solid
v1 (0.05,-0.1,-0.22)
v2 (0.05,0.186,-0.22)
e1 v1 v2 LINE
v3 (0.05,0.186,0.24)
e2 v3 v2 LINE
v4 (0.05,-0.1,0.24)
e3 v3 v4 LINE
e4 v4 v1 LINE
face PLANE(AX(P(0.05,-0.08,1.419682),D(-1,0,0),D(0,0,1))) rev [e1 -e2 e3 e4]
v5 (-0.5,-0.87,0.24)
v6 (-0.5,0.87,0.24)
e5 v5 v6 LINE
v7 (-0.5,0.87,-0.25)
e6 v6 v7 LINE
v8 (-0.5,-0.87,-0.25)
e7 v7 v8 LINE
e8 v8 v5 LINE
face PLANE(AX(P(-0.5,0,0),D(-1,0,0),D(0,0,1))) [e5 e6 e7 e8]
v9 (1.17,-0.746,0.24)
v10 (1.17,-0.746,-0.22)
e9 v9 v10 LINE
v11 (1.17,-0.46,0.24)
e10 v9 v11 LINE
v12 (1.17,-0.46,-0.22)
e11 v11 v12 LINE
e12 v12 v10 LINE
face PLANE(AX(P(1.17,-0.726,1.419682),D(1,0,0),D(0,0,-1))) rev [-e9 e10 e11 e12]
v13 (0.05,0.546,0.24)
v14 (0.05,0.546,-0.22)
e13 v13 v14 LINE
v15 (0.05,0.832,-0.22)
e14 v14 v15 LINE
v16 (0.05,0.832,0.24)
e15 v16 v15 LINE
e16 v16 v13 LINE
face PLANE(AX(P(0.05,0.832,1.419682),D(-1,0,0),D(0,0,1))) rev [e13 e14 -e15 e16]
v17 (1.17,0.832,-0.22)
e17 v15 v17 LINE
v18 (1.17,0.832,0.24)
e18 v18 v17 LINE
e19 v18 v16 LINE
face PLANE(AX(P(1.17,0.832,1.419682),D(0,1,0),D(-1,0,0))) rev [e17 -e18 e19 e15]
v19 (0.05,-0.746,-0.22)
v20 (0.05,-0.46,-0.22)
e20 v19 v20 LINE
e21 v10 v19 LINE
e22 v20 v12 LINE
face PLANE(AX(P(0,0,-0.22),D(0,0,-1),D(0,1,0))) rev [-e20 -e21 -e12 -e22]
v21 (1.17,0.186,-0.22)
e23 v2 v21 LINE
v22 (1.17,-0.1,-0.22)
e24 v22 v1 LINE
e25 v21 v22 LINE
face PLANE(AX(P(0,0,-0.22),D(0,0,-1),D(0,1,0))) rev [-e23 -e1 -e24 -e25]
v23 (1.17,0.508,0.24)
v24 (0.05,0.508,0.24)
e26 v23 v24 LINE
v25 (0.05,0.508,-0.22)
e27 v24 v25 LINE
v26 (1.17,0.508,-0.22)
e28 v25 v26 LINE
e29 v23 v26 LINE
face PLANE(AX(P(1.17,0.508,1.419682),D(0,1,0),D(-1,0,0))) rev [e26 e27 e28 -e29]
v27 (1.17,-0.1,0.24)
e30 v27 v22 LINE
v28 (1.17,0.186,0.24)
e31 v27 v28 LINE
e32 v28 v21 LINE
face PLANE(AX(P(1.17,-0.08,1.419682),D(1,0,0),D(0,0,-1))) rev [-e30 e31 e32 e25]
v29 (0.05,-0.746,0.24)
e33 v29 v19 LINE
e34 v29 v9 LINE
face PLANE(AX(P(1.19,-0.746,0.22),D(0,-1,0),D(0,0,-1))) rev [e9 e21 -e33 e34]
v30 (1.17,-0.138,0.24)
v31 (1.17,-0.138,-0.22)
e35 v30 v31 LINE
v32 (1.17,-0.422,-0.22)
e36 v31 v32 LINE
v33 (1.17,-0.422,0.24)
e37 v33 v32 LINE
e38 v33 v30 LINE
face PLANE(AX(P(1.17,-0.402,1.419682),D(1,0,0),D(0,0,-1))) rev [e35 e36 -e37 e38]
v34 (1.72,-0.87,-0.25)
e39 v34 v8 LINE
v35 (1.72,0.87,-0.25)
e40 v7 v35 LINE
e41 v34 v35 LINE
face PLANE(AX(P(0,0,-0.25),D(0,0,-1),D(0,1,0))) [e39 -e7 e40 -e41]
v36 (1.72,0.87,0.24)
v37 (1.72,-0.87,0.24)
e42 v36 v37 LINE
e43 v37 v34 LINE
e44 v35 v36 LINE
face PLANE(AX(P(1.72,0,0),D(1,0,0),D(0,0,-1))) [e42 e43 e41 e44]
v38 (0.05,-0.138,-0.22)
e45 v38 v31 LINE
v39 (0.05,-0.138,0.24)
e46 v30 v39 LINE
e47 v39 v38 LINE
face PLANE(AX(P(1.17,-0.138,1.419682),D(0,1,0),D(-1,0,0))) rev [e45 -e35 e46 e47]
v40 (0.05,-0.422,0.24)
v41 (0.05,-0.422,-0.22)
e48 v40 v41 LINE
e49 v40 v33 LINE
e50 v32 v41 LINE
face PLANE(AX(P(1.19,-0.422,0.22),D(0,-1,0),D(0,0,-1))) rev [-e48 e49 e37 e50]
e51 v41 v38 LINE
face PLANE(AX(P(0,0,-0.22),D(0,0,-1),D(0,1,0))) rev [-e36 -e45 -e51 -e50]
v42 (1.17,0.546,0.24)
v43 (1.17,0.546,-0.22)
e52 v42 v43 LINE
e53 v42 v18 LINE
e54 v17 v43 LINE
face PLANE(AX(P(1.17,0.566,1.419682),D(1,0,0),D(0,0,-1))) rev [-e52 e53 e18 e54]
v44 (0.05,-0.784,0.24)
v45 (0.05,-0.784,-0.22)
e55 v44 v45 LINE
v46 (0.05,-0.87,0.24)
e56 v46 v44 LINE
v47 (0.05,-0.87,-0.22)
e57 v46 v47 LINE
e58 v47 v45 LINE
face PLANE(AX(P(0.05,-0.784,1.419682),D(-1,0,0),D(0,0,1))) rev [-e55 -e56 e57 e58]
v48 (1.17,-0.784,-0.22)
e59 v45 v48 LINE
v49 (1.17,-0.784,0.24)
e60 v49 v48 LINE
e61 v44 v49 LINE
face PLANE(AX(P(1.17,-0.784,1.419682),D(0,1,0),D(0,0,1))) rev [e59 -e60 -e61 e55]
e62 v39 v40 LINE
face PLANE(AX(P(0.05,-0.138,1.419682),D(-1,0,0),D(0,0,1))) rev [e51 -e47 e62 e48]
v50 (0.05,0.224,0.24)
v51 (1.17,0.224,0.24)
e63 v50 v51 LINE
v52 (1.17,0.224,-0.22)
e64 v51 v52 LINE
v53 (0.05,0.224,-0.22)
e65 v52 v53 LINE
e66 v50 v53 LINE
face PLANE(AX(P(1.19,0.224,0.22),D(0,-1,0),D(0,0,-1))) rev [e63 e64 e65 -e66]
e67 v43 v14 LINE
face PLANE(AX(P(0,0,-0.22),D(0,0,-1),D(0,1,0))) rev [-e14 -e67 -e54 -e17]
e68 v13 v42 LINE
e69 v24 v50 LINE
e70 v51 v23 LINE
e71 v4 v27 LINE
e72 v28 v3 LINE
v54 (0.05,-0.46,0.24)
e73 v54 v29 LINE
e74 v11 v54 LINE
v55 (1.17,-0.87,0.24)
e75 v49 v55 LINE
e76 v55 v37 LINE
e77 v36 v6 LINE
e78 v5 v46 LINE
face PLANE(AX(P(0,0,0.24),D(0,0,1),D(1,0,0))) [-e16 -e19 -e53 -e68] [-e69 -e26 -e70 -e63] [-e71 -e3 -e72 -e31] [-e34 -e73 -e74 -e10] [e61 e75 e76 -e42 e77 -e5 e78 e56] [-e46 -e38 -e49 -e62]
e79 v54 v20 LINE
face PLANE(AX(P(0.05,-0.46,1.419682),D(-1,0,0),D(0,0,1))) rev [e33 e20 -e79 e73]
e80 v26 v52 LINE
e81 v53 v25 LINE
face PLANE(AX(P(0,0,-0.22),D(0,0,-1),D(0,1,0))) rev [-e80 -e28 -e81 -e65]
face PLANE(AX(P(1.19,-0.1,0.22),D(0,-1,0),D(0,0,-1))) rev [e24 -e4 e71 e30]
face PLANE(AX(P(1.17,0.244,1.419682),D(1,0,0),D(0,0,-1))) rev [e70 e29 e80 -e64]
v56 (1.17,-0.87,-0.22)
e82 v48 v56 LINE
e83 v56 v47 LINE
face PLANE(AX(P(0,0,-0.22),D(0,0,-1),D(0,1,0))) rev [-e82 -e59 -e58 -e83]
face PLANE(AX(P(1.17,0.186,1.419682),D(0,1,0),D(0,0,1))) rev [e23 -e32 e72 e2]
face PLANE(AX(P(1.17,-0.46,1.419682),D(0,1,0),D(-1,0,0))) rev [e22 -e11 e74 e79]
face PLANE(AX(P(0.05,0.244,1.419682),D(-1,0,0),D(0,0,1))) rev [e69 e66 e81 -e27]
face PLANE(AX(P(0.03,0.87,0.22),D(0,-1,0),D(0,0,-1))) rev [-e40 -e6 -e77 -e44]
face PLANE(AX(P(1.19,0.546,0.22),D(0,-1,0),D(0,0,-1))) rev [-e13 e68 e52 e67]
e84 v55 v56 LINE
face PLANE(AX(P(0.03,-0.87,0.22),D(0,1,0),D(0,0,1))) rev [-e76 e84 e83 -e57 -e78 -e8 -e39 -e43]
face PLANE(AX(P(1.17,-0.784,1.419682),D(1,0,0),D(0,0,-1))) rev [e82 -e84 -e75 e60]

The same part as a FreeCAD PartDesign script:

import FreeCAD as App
import Part
import Sketcher
Q = App.Units.Quantity

doc = App.newDocument("Part")
body = doc.addObject("PartDesign::Body", "Body")

# Sketch on YZ plane
sketch1 = body.newObject("Sketcher::SketchObject", "Sketch")
sketch1.AttachmentSupport = (doc.getObject("YZ_Plane"), [""])
sketch1.MapMode = "FlatFace"
sketch1.addGeometry(Part.LineSegment(App.Vector(0.87, 0.22, 0), App.Vector(-0.87, 0.22, 0)), False)
sketch1.addGeometry(Part.LineSegment(App.Vector(-0.87, 0.22, 0), App.Vector(-0.87, -0.22, 0)), False)
sketch1.addGeometry(Part.LineSegment(App.Vector(-0.87, -0.22, 0), App.Vector(0.87, -0.22, 0)), False)
sketch1.addGeometry(Part.LineSegment(App.Vector(0.87, -0.22, 0), App.Vector(0.87, 0.22, 0)), False)
sketch1.addConstraint(Sketcher.Constraint("Coincident", 0, 2, 1, 1))
sketch1.addConstraint(Sketcher.Constraint("Coincident", 1, 2, 2, 1))
sketch1.addConstraint(Sketcher.Constraint("Coincident", 2, 2, 3, 1))
sketch1.addConstraint(Sketcher.Constraint("Coincident", 3, 2, 0, 1))
sketch1.addConstraint(Sketcher.Constraint("Horizontal", 0))
sketch1.addConstraint(Sketcher.Constraint("Vertical", 1))
sketch1.addConstraint(Sketcher.Constraint("Horizontal", 2))
sketch1.addConstraint(Sketcher.Constraint("Vertical", 3))
sketch1.addConstraint(Sketcher.Constraint("Symmetric", 0, 2, 2, 2, -1, 1))
sketch1.addConstraint(Sketcher.Constraint("DistanceX", 0, 2, 0, 1, Q("1.74 mm")))
sketch1.addConstraint(Sketcher.Constraint("DistanceY", 1, 2, 1, 1, Q("0.44 mm")))
pad1 = body.newObject("PartDesign::Pad", "Pad")
pad1.Profile = sketch1
pad1.Length = 0.03

# Sketch on YZ plane
sketch2 = body.newObject("Sketcher::SketchObject", "Sketch001")
sketch2.AttachmentSupport = (doc.getObject("YZ_Plane"), [""])
sketch2.MapMode = "FlatFace"
sketch2.AttachmentOffset = App.Placement(App.Vector(0, 0, 0.03), App.Rotation())
sketch2.addGeometry(Part.LineSegment(App.Vector(-0.746, 0.22, 0), App.Vector(-0.764, 0.22, 0)), False)
sketch2.addGeometry(Part.LineSegment(App.Vector(-0.764, 0.22, 0), App.Vector(-0.764, -0.22, 0)), False)
sketch2.addGeometry(Part.LineSegment(App.Vector(-0.764, -0.22, 0), App.Vector(-0.746, -0.22, 0)), False)
sketch2.addGeometry(Part.LineSegment(App.Vector(-0.746, -0.22, 0), App.Vector(-0.746, 0.22, 0)), False)
sketch2.addGeometry(Part.LineSegment(App.Vector(-0.422, 0.22, 0), App.Vector(-0.44, 0.22, 0)), False)
sketch2.addGeometry(Part.LineSegment(App.Vector(-0.44, 0.22, 0), App.Vector(-0.44, -0.22, 0)), False)
sketch2.addGeometry(Part.LineSegment(App.Vector(-0.44, -0.22, 0), App.Vector(-0.422, -0.22, 0)), False)
sketch2.addGeometry(Part.LineSegment(App.Vector(-0.422, -0.22, 0), App.Vector(-0.422, 0.22, 0)), False)
sketch2.addGeometry(Part.LineSegment(App.Vector(-0.1, 0.22, 0), App.Vector(-0.118, 0.22, 0)), False)
sketch2.addGeometry(Part.LineSegment(App.Vector(-0.118, 0.22, 0), App.Vector(-0.118, -0.22, 0)), False)
sketch2.addGeometry(Part.LineSegment(App.Vector(-0.118, -0.22, 0), App.Vector(-0.1, -0.22, 0)), False)
sketch2.addGeometry(Part.LineSegment(App.Vector(-0.1, -0.22, 0), App.Vector(-0.1, 0.22, 0)), False)
sketch2.addGeometry(Part.LineSegment(App.Vector(0.224, 0.22, 0), App.Vector(0.206, 0.22, 0)), False)
sketch2.addGeometry(Part.LineSegment(App.Vector(0.206, 0.22, 0), App.Vector(0.206, -0.22, 0)), False)
sketch2.addGeometry(Part.LineSegment(App.Vector(0.206, -0.22, 0), App.Vector(0.224, -0.22, 0)), False)
sketch2.addGeometry(Part.LineSegment(App.Vector(0.224, -0.22, 0), App.Vector(0.224, 0.22, 0)), False)
sketch2.addGeometry(Part.LineSegment(App.Vector(0.546, 0.22, 0), App.Vector(0.528, 0.22, 0)), False)
sketch2.addGeometry(Part.LineSegment(App.Vector(0.528, 0.22, 0), App.Vector(0.528, -0.22, 0)), False)
sketch2.addGeometry(Part.LineSegment(App.Vector(0.528, -0.22, 0), App.Vector(0.546, -0.22, 0)), False)
sketch2.addGeometry(Part.LineSegment(App.Vector(0.546, -0.22, 0), App.Vector(0.546, 0.22, 0)), False)
sketch2.addGeometry(Part.LineSegment(App.Vector(0.87, 0.22, 0), App.Vector(0.852, 0.22, 0)), False)
sketch2.addGeometry(Part.LineSegment(App.Vector(0.852, 0.22, 0), App.Vector(0.852, -0.22, 0)), False)
sketch2.addGeometry(Part.LineSegment(App.Vector(0.852, -0.22, 0), App.Vector(0.87, -0.22, 0)), False)
sketch2.addGeometry(Part.LineSegment(App.Vector(0.87, -0.22, 0), App.Vector(0.87, 0.22, 0)), False)
sketch2.addConstraint(Sketcher.Constraint("Coincident", 0, 2, 1, 1))
sketch2.addConstraint(Sketcher.Constraint("Coincident", 1, 2, 2, 1))
sketch2.addConstraint(Sketcher.Constraint("Coincident", 2, 2, 3, 1))
sketch2.addConstraint(Sketcher.Constraint("Coincident", 3, 2, 0, 1))
sketch2.addConstraint(Sketcher.Constraint("Coincident", 4, 2, 5, 1))
sketch2.addConstraint(Sketcher.Constraint("Coincident", 5, 2, 6, 1))
sketch2.addConstraint(Sketcher.Constraint("Coincident", 6, 2, 7, 1))
sketch2.addConstraint(Sketcher.Constraint("Coincident", 7, 2, 4, 1))
sketch2.addConstraint(Sketcher.Constraint("Coincident", 8, 2, 9, 1))
sketch2.addConstraint(Sketcher.Constraint("Coincident", 9, 2, 10, 1))
sketch2.addConstraint(Sketcher.Constraint("Coincident", 10, 2, 11, 1))
sketch2.addConstraint(Sketcher.Constraint("Coincident", 11, 2, 8, 1))
sketch2.addConstraint(Sketcher.Constraint("Coincident", 12, 2, 13, 1))
sketch2.addConstraint(Sketcher.Constraint("Coincident", 13, 2, 14, 1))
sketch2.addConstraint(Sketcher.Constraint("Coincident", 14, 2, 15, 1))
sketch2.addConstraint(Sketcher.Constraint("Coincident", 15, 2, 12, 1))
sketch2.addConstraint(Sketcher.Constraint("Coincident", 16, 2, 17, 1))
sketch2.addConstraint(Sketcher.Constraint("Coincident", 17, 2, 18, 1))
sketch2.addConstraint(Sketcher.Constraint("Coincident", 18, 2, 19, 1))
sketch2.addConstraint(Sketcher.Constraint("Coincident", 19, 2, 16, 1))
sketch2.addConstraint(Sketcher.Constraint("Coincident", 20, 2, 21, 1))
sketch2.addConstraint(Sketcher.Constraint("Coincident", 21, 2, 22, 1))
sketch2.addConstraint(Sketcher.Constraint("Coincident", 22, 2, 23, 1))
sketch2.addConstraint(Sketcher.Constraint("Coincident", 23, 2, 20, 1))
sketch2.addConstraint(Sketcher.Constraint("Horizontal", 0))
sketch2.addConstraint(Sketcher.Constraint("Vertical", 1))
sketch2.addConstraint(Sketcher.Constraint("Horizontal", 2))
sketch2.addConstraint(Sketcher.Constraint("Vertical", 3))
sketch2.addConstraint(Sketcher.Constraint("Horizontal", 4))
sketch2.addConstraint(Sketcher.Constraint("Vertical", 5))
sketch2.addConstraint(Sketcher.Constraint("Horizontal", 6))
sketch2.addConstraint(Sketcher.Constraint("Vertical", 7))
sketch2.addConstraint(Sketcher.Constraint("Horizontal", 8))
sketch2.addConstraint(Sketcher.Constraint("Vertical", 9))
sketch2.addConstraint(Sketcher.Constraint("Horizontal", 10))
sketch2.addConstraint(Sketcher.Constraint("Vertical", 11))
sketch2.addConstraint(Sketcher.Constraint("Horizontal", 12))
sketch2.addConstraint(Sketcher.Constraint("Vertical", 13))
sketch2.addConstraint(Sketcher.Constraint("Horizontal", 14))
sketch2.addConstraint(Sketcher.Constraint("Vertical", 15))
sketch2.addConstraint(Sketcher.Constraint("Horizontal", 16))
sketch2.addConstraint(Sketcher.Constraint("Vertical", 17))
sketch2.addConstraint(Sketcher.Constraint("Horizontal", 18))
sketch2.addConstraint(Sketcher.Constraint("Vertical", 19))
sketch2.addConstraint(Sketcher.Constraint("Horizontal", 20))
sketch2.addConstraint(Sketcher.Constraint("Vertical", 21))
sketch2.addConstraint(Sketcher.Constraint("Horizontal", 22))
sketch2.addConstraint(Sketcher.Constraint("Vertical", 23))
sketch2.addConstraint(Sketcher.Constraint("Horizontal", 3, 2, 4, 2))
sketch2.addConstraint(Sketcher.Constraint("Horizontal", 2, 2, 5, 2))
sketch2.addConstraint(Sketcher.Constraint("Horizontal", 7, 2, 8, 2))
sketch2.addConstraint(Sketcher.Constraint("Horizontal", 6, 2, 9, 2))
sketch2.addConstraint(Sketcher.Constraint("Horizontal", 11, 2, 12, 2))
sketch2.addConstraint(Sketcher.Constraint("Horizontal", 10, 2, 13, 2))
sketch2.addConstraint(Sketcher.Constraint("Horizontal", 15, 2, 16, 2))
sketch2.addConstraint(Sketcher.Constraint("Horizontal", 14, 2, 17, 2))
sketch2.addConstraint(Sketcher.Constraint("Horizontal", 19, 2, 20, 2))
sketch2.addConstraint(Sketcher.Constraint("Horizontal", 18, 2, 21, 2))
sketch2.addConstraint(Sketcher.Constraint("Equal", 2, 4))
sketch2.addConstraint(Sketcher.Constraint("Equal", 6, 8))
sketch2.addConstraint(Sketcher.Constraint("Equal", 10, 12))
sketch2.addConstraint(Sketcher.Constraint("Equal", 14, 16))
sketch2.addConstraint(Sketcher.Constraint("Equal", 18, 20))
sketch2.addConstraint(Sketcher.Constraint("DistanceY", 1, 2, 1, 1, Q("0.44 mm")))
sketch2.addConstraint(Sketcher.Constraint("DistanceX", 10, 2, -1, 1, Q("0.1 mm")))
sketch2.addConstraint(Sketcher.Constraint("DistanceX", 0, 2, 0, 1, Q("0.018 mm")))
sketch2.addConstraint(Sketcher.Constraint("DistanceY", -1, 1, 0, 2, Q("0.22 mm")))
sketch2.addConstraint(Sketcher.Constraint("DistanceX", 4, 2, -1, 1, Q("0.44 mm")))
sketch2.addConstraint(Sketcher.Constraint("DistanceX", -1, 1, 22, 2, Q("0.87 mm")))
sketch2.addConstraint(Sketcher.Constraint("DistanceX", 13, 2, 18, 2, Q("0.34 mm")))
sketch2.addConstraint(Sketcher.Constraint("DistanceX", 0, 2, -1, 1, Q("0.764 mm")))
sketch2.addConstraint(Sketcher.Constraint("DistanceX", -1, 1, 12, 2, Q("0.206 mm")))
pad2 = body.newObject("PartDesign::Pad", "Pad001")
pad2.Profile = sketch2
pad2.Length = 1.16

# Sketch on YZ plane
sketch3 = body.newObject("Sketcher::SketchObject", "Sketch002")
sketch3.AttachmentSupport = (doc.getObject("YZ_Plane"), [""])
sketch3.MapMode = "FlatFace"
sketch3.AttachmentOffset = App.Placement(App.Vector(0, 0, 1.19), App.Rotation())
sketch3.addGeometry(Part.LineSegment(App.Vector(0.87, 0.22, 0), App.Vector(-0.87, 0.22, 0)), False)
sketch3.addGeometry(Part.LineSegment(App.Vector(-0.87, 0.22, 0), App.Vector(-0.87, -0.22, 0)), False)
sketch3.addGeometry(Part.LineSegment(App.Vector(-0.87, -0.22, 0), App.Vector(0.87, -0.22, 0)), False)
sketch3.addGeometry(Part.LineSegment(App.Vector(0.87, -0.22, 0), App.Vector(0.87, 0.22, 0)), False)
sketch3.addConstraint(Sketcher.Constraint("Coincident", 0, 2, 1, 1))
sketch3.addConstraint(Sketcher.Constraint("Coincident", 1, 2, 2, 1))
sketch3.addConstraint(Sketcher.Constraint("Coincident", 2, 2, 3, 1))
sketch3.addConstraint(Sketcher.Constraint("Coincident", 3, 2, 0, 1))
sketch3.addConstraint(Sketcher.Constraint("Horizontal", 0))
sketch3.addConstraint(Sketcher.Constraint("Vertical", 1))
sketch3.addConstraint(Sketcher.Constraint("Horizontal", 2))
sketch3.addConstraint(Sketcher.Constraint("Vertical", 3))
sketch3.addConstraint(Sketcher.Constraint("Symmetric", 0, 2, 2, 2, -1, 1))
sketch3.addConstraint(Sketcher.Constraint("DistanceX", 0, 2, 0, 1, Q("1.74 mm")))
sketch3.addConstraint(Sketcher.Constraint("DistanceY", 1, 2, 1, 1, Q("0.44 mm")))
pad3 = body.newObject("PartDesign::Pad", "Pad002")
pad3.Profile = sketch3
pad3.Length = 0.03

# Sketch on XY plane
sketch4 = body.newObject("Sketcher::SketchObject", "Sketch003")
sketch4.AttachmentSupport = (doc.getObject("XY_Plane"), [""])
sketch4.MapMode = "FlatFace"
sketch4.AttachmentOffset = App.Placement(App.Vector(0, 0, -0.22), App.Rotation())
sketch4.addGeometry(Part.LineSegment(App.Vector(1.22, 0.87, 0), App.Vector(1.22, -0.87, 0)), False)
sketch4.addGeometry(Part.LineSegment(App.Vector(1.22, -0.87, 0), App.Vector(0, -0.87, 0)), False)
sketch4.addGeometry(Part.LineSegment(App.Vector(0, -0.87, 0), App.Vector(0, 0.87, 0)), False)
sketch4.addGeometry(Part.LineSegment(App.Vector(0, 0.87, 0), App.Vector(1.22, 0.87, 0)), False)
sketch4.addConstraint(Sketcher.Constraint("Coincident", 0, 2, 1, 1))
sketch4.addConstraint(Sketcher.Constraint("Coincident", 1, 2, 2, 1))
sketch4.addConstraint(Sketcher.Constraint("Coincident", 2, 2, 3, 1))
sketch4.addConstraint(Sketcher.Constraint("Coincident", 3, 2, 0, 1))
sketch4.addConstraint(Sketcher.Constraint("Vertical", 0))
sketch4.addConstraint(Sketcher.Constraint("Horizontal", 1))
sketch4.addConstraint(Sketcher.Constraint("Vertical", 2))
sketch4.addConstraint(Sketcher.Constraint("Horizontal", 3))
sketch4.addConstraint(Sketcher.Constraint("Symmetric", 1, 2, 2, 2, -1, 1))
sketch4.addConstraint(Sketcher.Constraint("DistanceX", 1, 2, 1, 1, Q("1.22 mm")))
sketch4.addConstraint(Sketcher.Constraint("DistanceY", 0, 2, 0, 1, Q("1.74 mm")))
pad4 = body.newObject("PartDesign::Pad", "Pad003")
pad4.Profile = sketch4
pad4.Length = 0.03
pad4.Reversed = True

# Sketch on XY plane
sketch5 = body.newObject("Sketcher::SketchObject", "Sketch004")
sketch5.AttachmentSupport = (doc.getObject("XY_Plane"), [""])
sketch5.MapMode = "FlatFace"
sketch5.AttachmentOffset = App.Placement(App.Vector(0, 0, -0.22), App.Rotation())
sketch5.addGeometry(Part.LineSegment(App.Vector(0.03, -0.87, 0), App.Vector(0.05, -0.87, 0)), False)
sketch5.addGeometry(Part.LineSegment(App.Vector(0.05, -0.87, 0), App.Vector(0.05, -0.784, 0)), False)
sketch5.addGeometry(Part.LineSegment(App.Vector(0.05, -0.784, 0), App.Vector(1.17, -0.784, 0)), False)
sketch5.addGeometry(Part.LineSegment(App.Vector(1.17, -0.784, 0), App.Vector(1.17, -0.87, 0)), False)
sketch5.addGeometry(Part.LineSegment(App.Vector(1.17, -0.87, 0), App.Vector(1.19, -0.87, 0)), False)
sketch5.addGeometry(Part.LineSegment(App.Vector(1.19, -0.87, 0), App.Vector(1.19, -0.764, 0)), False)
sketch5.addGeometry(Part.LineSegment(App.Vector(1.19, -0.764, 0), App.Vector(0.03, -0.764, 0)), False)
sketch5.addGeometry(Part.LineSegment(App.Vector(0.03, -0.764, 0), App.Vector(0.03, -0.87, 0)), False)
sketch5.addGeometry(Part.LineSegment(App.Vector(0.03, -0.746, 0), App.Vector(0.05, -0.746, 0)), False)
sketch5.addGeometry(Part.LineSegment(App.Vector(0.05, -0.746, 0), App.Vector(0.05, -0.46, 0)), False)
sketch5.addGeometry(Part.LineSegment(App.Vector(0.05, -0.46, 0), App.Vector(1.17, -0.46, 0)), False)
sketch5.addGeometry(Part.LineSegment(App.Vector(1.17, -0.46, 0), App.Vector(1.17, -0.746, 0)), False)
sketch5.addGeometry(Part.LineSegment(App.Vector(1.17, -0.746, 0), App.Vector(1.19, -0.746, 0)), False)
sketch5.addGeometry(Part.LineSegment(App.Vector(1.19, -0.746, 0), App.Vector(1.19, -0.44, 0)), False)
sketch5.addGeometry(Part.LineSegment(App.Vector(1.19, -0.44, 0), App.Vector(0.03, -0.44, 0)), False)
sketch5.addGeometry(Part.LineSegment(App.Vector(0.03, -0.44, 0), App.Vector(0.03, -0.746, 0)), False)
sketch5.addGeometry(Part.LineSegment(App.Vector(0.03, -0.422, 0), App.Vector(0.05, -0.422, 0)), False)
sketch5.addGeometry(Part.LineSegment(App.Vector(0.05, -0.422, 0), App.Vector(0.05, -0.138, 0)), False)
sketch5.addGeometry(Part.LineSegment(App.Vector(0.05, -0.138, 0), App.Vector(1.17, -0.138, 0)), False)
sketch5.addGeometry(Part.LineSegment(App.Vector(1.17, -0.138, 0), App.Vector(1.17, -0.422, 0)), False)
sketch5.addGeometry(Part.LineSegment(App.Vector(1.17, -0.422, 0), App.Vector(1.19, -0.422, 0)), False)
sketch5.addGeometry(Part.LineSegment(App.Vector(1.19, -0.422, 0), App.Vector(1.19, -0.118, 0)), False)
sketch5.addGeometry(Part.LineSegment(App.Vector(1.19, -0.118, 0), App.Vector(0.03, -0.118, 0)), False)
sketch5.addGeometry(Part.LineSegment(App.Vector(0.03, -0.118, 0), App.Vector(0.03, -0.422, 0)), False)
sketch5.addGeometry(Part.LineSegment(App.Vector(0.03, -0.1, 0), App.Vector(0.05, -0.1, 0)), False)
sketch5.addGeometry(Part.LineSegment(App.Vector(0.05, -0.1, 0), App.Vector(0.05, 0.186, 0)), False)
sketch5.addGeometry(Part.LineSegment(App.Vector(0.05, 0.186, 0), App.Vector(1.17, 0.186, 0)), False)
sketch5.addGeometry(Part.LineSegment(App.Vector(1.17, 0.186, 0), App.Vector(1.17, -0.1, 0)), False)
sketch5.addGeometry(Part.LineSegment(App.Vector(1.17, -0.1, 0), App.Vector(1.19, -0.1, 0)), False)
sketch5.addGeometry(Part.LineSegment(App.Vector(1.19, -0.1, 0), App.Vector(1.19, 0.206, 0)), False)
sketch5.addGeometry(Part.LineSegment(App.Vector(1.19, 0.206, 0), App.Vector(0.03, 0.206, 0)), False)
sketch5.addGeometry(Part.LineSegment(App.Vector(0.03, 0.206, 0), App.Vector(0.03, -0.1, 0)), False)
sketch5.addGeometry(Part.LineSegment(App.Vector(0.03, 0.224, 0), App.Vector(0.05, 0.224, 0)), False)
sketch5.addGeometry(Part.LineSegment(App.Vector(0.05, 0.224, 0), App.Vector(0.05, 0.508, 0)), False)
sketch5.addGeometry(Part.LineSegment(App.Vector(0.05, 0.508, 0), App.Vector(1.17, 0.508, 0)), False)
sketch5.addGeometry(Part.LineSegment(App.Vector(1.17, 0.508, 0), App.Vector(1.17, 0.224, 0)), False)
sketch5.addGeometry(Part.LineSegment(App.Vector(1.17, 0.224, 0), App.Vector(1.19, 0.224, 0)), False)
sketch5.addGeometry(Part.LineSegment(App.Vector(1.19, 0.224, 0), App.Vector(1.19, 0.528, 0)), False)
sketch5.addGeometry(Part.LineSegment(App.Vector(1.19, 0.528, 0), App.Vector(0.03, 0.528, 0)), False)
sketch5.addGeometry(Part.LineSegment(App.Vector(0.03, 0.528, 0), App.Vector(0.03, 0.224, 0)), False)
sketch5.addGeometry(Part.LineSegment(App.Vector(0.03, 0.546, 0), App.Vector(0.05, 0.546, 0)), False)
sketch5.addGeometry(Part.LineSegment(App.Vector(0.05, 0.546, 0), App.Vector(0.05, 0.832, 0)), False)
sketch5.addGeometry(Part.LineSegment(App.Vector(0.05, 0.832, 0), App.Vector(1.17, 0.832, 0)), False)
sketch5.addGeometry(Part.LineSegment(App.Vector(1.17, 0.832, 0), App.Vector(1.17, 0.546, 0)), False)
sketch5.addGeometry(Part.LineSegment(App.Vector(1.17, 0.546, 0), App.Vector(1.19, 0.546, 0)), False)
sketch5.addGeometry(Part.LineSegment(App.Vector(1.19, 0.546, 0), App.Vector(1.19, 0.852, 0)), False)
sketch5.addGeometry(Part.LineSegment(App.Vector(1.19, 0.852, 0), App.Vector(0.03, 0.852, 0)), False)
sketch5.addGeometry(Part.LineSegment(App.Vector(0.03, 0.852, 0), App.Vector(0.03, 0.546, 0)), False)
sketch5.addConstraint(Sketcher.Constraint("Coincident", 0, 2, 1, 1))
sketch5.addConstraint(Sketcher.Constraint("Coincident", 1, 2, 2, 1))
sketch5.addConstraint(Sketcher.Constraint("Coincident", 2, 2, 3, 1))
sketch5.addConstraint(Sketcher.Constraint("Coincident", 3, 2, 4, 1))
sketch5.addConstraint(Sketcher.Constraint("Coincident", 4, 2, 5, 1))
sketch5.addConstraint(Sketcher.Constraint("Coincident", 5, 2, 6, 1))
sketch5.addConstraint(Sketcher.Constraint("Coincident", 6, 2, 7, 1))
sketch5.addConstraint(Sketcher.Constraint("Coincident", 7, 2, 0, 1))
sketch5.addConstraint(Sketcher.Constraint("Coincident", 8, 2, 9, 1))
sketch5.addConstraint(Sketcher.Constraint("Coincident", 9, 2, 10, 1))
sketch5.addConstraint(Sketcher.Constraint("Coincident", 10, 2, 11, 1))
sketch5.addConstraint(Sketcher.Constraint("Coincident", 11, 2, 12, 1))
sketch5.addConstraint(Sketcher.Constraint("Coincident", 12, 2, 13, 1))
sketch5.addConstraint(Sketcher.Constraint("Coincident", 13, 2, 14, 1))
sketch5.addConstraint(Sketcher.Constraint("Coincident", 14, 2, 15, 1))
sketch5.addConstraint(Sketcher.Constraint("Coincident", 15, 2, 8, 1))
sketch5.addConstraint(Sketcher.Constraint("Coincident", 16, 2, 17, 1))
sketch5.addConstraint(Sketcher.Constraint("Coincident", 17, 2, 18, 1))
sketch5.addConstraint(Sketcher.Constraint("Coincident", 18, 2, 19, 1))
sketch5.addConstraint(Sketcher.Constraint("Coincident", 19, 2, 20, 1))
sketch5.addConstraint(Sketcher.Constraint("Coincident", 20, 2, 21, 1))
sketch5.addConstraint(Sketcher.Constraint("Coincident", 21, 2, 22, 1))
sketch5.addConstraint(Sketcher.Constraint("Coincident", 22, 2, 23, 1))
sketch5.addConstraint(Sketcher.Constraint("Coincident", 23, 2, 16, 1))
sketch5.addConstraint(Sketcher.Constraint("Coincident", 24, 2, 25, 1))
sketch5.addConstraint(Sketcher.Constraint("Coincident", 25, 2, 26, 1))
sketch5.addConstraint(Sketcher.Constraint("Coincident", 26, 2, 27, 1))
sketch5.addConstraint(Sketcher.Constraint("Coincident", 27, 2, 28, 1))
sketch5.addConstraint(Sketcher.Constraint("Coincident", 28, 2, 29, 1))
sketch5.addConstraint(Sketcher.Constraint("Coincident", 29, 2, 30, 1))
sketch5.addConstraint(Sketcher.Constraint("Coincident", 30, 2, 31, 1))
sketch5.addConstraint(Sketcher.Constraint("Coincident", 31, 2, 24, 1))
sketch5.addConstraint(Sketcher.Constraint("Coincident", 32, 2, 33, 1))
sketch5.addConstraint(Sketcher.Constraint("Coincident", 33, 2, 34, 1))
sketch5.addConstraint(Sketcher.Constraint("Coincident", 34, 2, 35, 1))
sketch5.addConstraint(Sketcher.Constraint("Coincident", 35, 2, 36, 1))
sketch5.addConstraint(Sketcher.Constraint("Coincident", 36, 2, 37, 1))
sketch5.addConstraint(Sketcher.Constraint("Coincident", 37, 2, 38, 1))
sketch5.addConstraint(Sketcher.Constraint("Coincident", 38, 2, 39, 1))
sketch5.addConstraint(Sketcher.Constraint("Coincident", 39, 2, 32, 1))
sketch5.addConstraint(Sketcher.Constraint("Coincident", 40, 2, 41, 1))
sketch5.addConstraint(Sketcher.Constraint("Coincident", 41, 2, 42, 1))
sketch5.addConstraint(Sketcher.Constraint("Coincident", 42, 2, 43, 1))
sketch5.addConstraint(Sketcher.Constraint("Coincident", 43, 2, 44, 1))
sketch5.addConstraint(Sketcher.Constraint("Coincident", 44, 2, 45, 1))
sketch5.addConstraint(Sketcher.Constraint("Coincident", 45, 2, 46, 1))
sketch5.addConstraint(Sketcher.Constraint("Coincident", 46, 2, 47, 1))
sketch5.addConstraint(Sketcher.Constraint("Coincident", 47, 2, 40, 1))
sketch5.addConstraint(Sketcher.Constraint("Horizontal", 0))
sketch5.addConstraint(Sketcher.Constraint("Vertical", 1))
sketch5.addConstraint(Sketcher.Constraint("Horizontal", 2))
sketch5.addConstraint(Sketcher.Constraint("Vertical", 3))
sketch5.addConstraint(Sketcher.Constraint("Horizontal", 4))
sketch5.addConstraint(Sketcher.Constraint("Vertical", 5))
sketch5.addConstraint(Sketcher.Constraint("Horizontal", 6))
sketch5.addConstraint(Sketcher.Constraint("Vertical", 7))
sketch5.addConstraint(Sketcher.Constraint("Horizontal", 8))
sketch5.addConstraint(Sketcher.Constraint("Vertical", 9))
sketch5.addConstraint(Sketcher.Constraint("Horizontal", 10))
sketch5.addConstraint(Sketcher.Constraint("Vertical", 11))
sketch5.addConstraint(Sketcher.Constraint("Horizontal", 12))
sketch5.addConstraint(Sketcher.Constraint("Vertical", 13))
sketch5.addConstraint(Sketcher.Constraint("Horizontal", 14))
sketch5.addConstraint(Sketcher.Constraint("Vertical", 15))
sketch5.addConstraint(Sketcher.Constraint("Horizontal", 16))
sketch5.addConstraint(Sketcher.Constraint("Vertical", 17))
sketch5.addConstraint(Sketcher.Constraint("Horizontal", 18))
sketch5.addConstraint(Sketcher.Constraint("Vertical", 19))
sketch5.addConstraint(Sketcher.Constraint("Horizontal", 20))
sketch5.addConstraint(Sketcher.Constraint("Vertical", 21))
sketch5.addConstraint(Sketcher.Constraint("Horizontal", 22))
sketch5.addConstraint(Sketcher.Constraint("Vertical", 23))
sketch5.addConstraint(Sketcher.Constraint("Horizontal", 24))
sketch5.addConstraint(Sketcher.Constraint("Vertical", 25))
sketch5.addConstraint(Sketcher.Constraint("Horizontal", 26))
sketch5.addConstraint(Sketcher.Constraint("Vertical", 27))
sketch5.addConstraint(Sketcher.Constraint("Horizontal", 28))
sketch5.addConstraint(Sketcher.Constraint("Vertical", 29))
sketch5.addConstraint(Sketcher.Constraint("Horizontal", 30))
sketch5.addConstraint(Sketcher.Constraint("Vertical", 31))
sketch5.addConstraint(Sketcher.Constraint("Horizontal", 32))
sketch5.addConstraint(Sketcher.Constraint("Vertical", 33))
sketch5.addConstraint(Sketcher.Constraint("Horizontal", 34))
sketch5.addConstraint(Sketcher.Constraint("Vertical", 35))
sketch5.addConstraint(Sketcher.Constraint("Horizontal", 36))
sketch5.addConstraint(Sketcher.Constraint("Vertical", 37))
sketch5.addConstraint(Sketcher.Constraint("Horizontal", 38))
sketch5.addConstraint(Sketcher.Constraint("Vertical", 39))
sketch5.addConstraint(Sketcher.Constraint("Horizontal", 40))
sketch5.addConstraint(Sketcher.Constraint("Vertical", 41))
sketch5.addConstraint(Sketcher.Constraint("Horizontal", 42))
sketch5.addConstraint(Sketcher.Constraint("Vertical", 43))
sketch5.addConstraint(Sketcher.Constraint("Horizontal", 44))
sketch5.addConstraint(Sketcher.Constraint("Vertical", 45))
sketch5.addConstraint(Sketcher.Constraint("Horizontal", 46))
sketch5.addConstraint(Sketcher.Constraint("Vertical", 47))
sketch5.addConstraint(Sketcher.Constraint("Horizontal", 0, 2, 3, 2))
sketch5.addConstraint(Sketcher.Constraint("Horizontal", 8, 2, 11, 2))
sketch5.addConstraint(Sketcher.Constraint("Horizontal", 16, 2, 19, 2))
sketch5.addConstraint(Sketcher.Constraint("Horizontal", 24, 2, 27, 2))
sketch5.addConstraint(Sketcher.Constraint("Horizontal", 32, 2, 35, 2))
sketch5.addConstraint(Sketcher.Constraint("Horizontal", 40, 2, 43, 2))
sketch5.addConstraint(Sketcher.Constraint("Vertical", 1, 2, 8, 2))
sketch5.addConstraint(Sketcher.Constraint("Vertical", 3, 2, 10, 2))
sketch5.addConstraint(Sketcher.Constraint("Vertical", 5, 2, 12, 2))
sketch5.addConstraint(Sketcher.Constraint("Vertical", 7, 2, 14, 2))
sketch5.addConstraint(Sketcher.Constraint("Vertical", 9, 2, 16, 2))
sketch5.addConstraint(Sketcher.Constraint("Vertical", 11, 2, 18, 2))
sketch5.addConstraint(Sketcher.Constraint("Vertical", 13, 2, 20, 2))
sketch5.addConstraint(Sketcher.Constraint("Vertical", 15, 2, 22, 2))
sketch5.addConstraint(Sketcher.Constraint("Vertical", 17, 2, 24, 2))
sketch5.addConstraint(Sketcher.Constraint("Vertical", 19, 2, 26, 2))
sketch5.addConstraint(Sketcher.Constraint("Vertical", 21, 2, 28, 2))
sketch5.addConstraint(Sketcher.Constraint("Vertical", 23, 2, 30, 2))
sketch5.addConstraint(Sketcher.Constraint("Vertical", 25, 2, 32, 2))
sketch5.addConstraint(Sketcher.Constraint("Vertical", 27, 2, 34, 2))
sketch5.addConstraint(Sketcher.Constraint("Vertical", 29, 2, 36, 2))
sketch5.addConstraint(Sketcher.Constraint("Vertical", 31, 2, 38, 2))
sketch5.addConstraint(Sketcher.Constraint("Vertical", 33, 2, 40, 2))
sketch5.addConstraint(Sketcher.Constraint("Vertical", 35, 2, 42, 2))
sketch5.addConstraint(Sketcher.Constraint("Vertical", 37, 2, 44, 2))
sketch5.addConstraint(Sketcher.Constraint("Vertical", 39, 2, 46, 2))
sketch5.addConstraint(Sketcher.Constraint("Equal", 0, 4))
sketch5.addConstraint(Sketcher.Constraint("Equal", 11, 25))
sketch5.addConstraint(Sketcher.Constraint("Equal", 15, 29))
sketch5.addConstraint(Sketcher.Constraint("Equal", 19, 33))
sketch5.addConstraint(Sketcher.Constraint("Equal", 23, 37))
sketch5.addConstraint(Sketcher.Constraint("Equal", 27, 41))
sketch5.addConstraint(Sketcher.Constraint("Equal", 31, 45))
sketch5.addConstraint(Sketcher.Constraint("DistanceX", 0, 1, 0, 2, Q("0.02 mm")))
sketch5.addConstraint(Sketcher.Constraint("DistanceX", 2, 1, 2, 2, Q("1.12 mm")))
sketch5.addConstraint(Sketcher.Constraint("DistanceY", 24, 2, -1, 1, Q("0.1 mm")))
sketch5.addConstraint(Sketcher.Constraint("DistanceY", 1, 1, 1, 2, Q("0.086 mm")))
sketch5.addConstraint(Sketcher.Constraint("DistanceY", 5, 1, 5, 2, Q("0.106 mm")))
sketch5.addConstraint(Sketcher.Constraint("DistanceY", 9, 1, 9, 2, Q("0.286 mm")))
sketch5.addConstraint(Sketcher.Constraint("DistanceY", 13, 1, 13, 2, Q("0.306 mm")))
sketch5.addConstraint(Sketcher.Constraint("DistanceY", 17, 1, 17, 2, Q("0.284 mm")))
sketch5.addConstraint(Sketcher.Constraint("DistanceY", 21, 1, 21, 2, Q("0.304 mm")))
sketch5.addConstraint(Sketcher.Constraint("DistanceX", -1, 1, 0, 2, Q("0.05 mm")))
sketch5.addConstraint(Sketcher.Constraint("DistanceY", 0, 2, -1, 1, Q("0.87 mm")))
sketch5.addConstraint(Sketcher.Constraint("DistanceY", 9, 2, -1, 1, Q("0.46 mm")))
sketch5.addConstraint(Sketcher.Constraint("DistanceY", 30, 2, 40, 2, Q("0.34 mm")))
sketch5.addConstraint(Sketcher.Constraint("DistanceY", 16, 2, -1, 1, Q("0.422 mm")))
sketch5.addConstraint(Sketcher.Constraint("DistanceY", -1, 1, 32, 2, Q("0.224 mm")))
pad5 = body.newObject("PartDesign::Pad", "Pad004")
pad5.Profile = sketch5
pad5.Length = 0.44

# Sketch on XY plane
sketch6 = body.newObject("Sketcher::SketchObject", "Sketch005")
sketch6.AttachmentSupport = (doc.getObject("XY_Plane"), [""])
sketch6.MapMode = "FlatFace"
sketch6.AttachmentOffset = App.Placement(App.Vector(0, 0, 0.22), App.Rotation())
sketch6.addGeometry(Part.LineSegment(App.Vector(0, -0.87, 0), App.Vector(0.05, -0.87, 0)), False)
sketch6.addGeometry(Part.LineSegment(App.Vector(0.05, -0.87, 0), App.Vector(0.05, -0.784, 0)), False)
sketch6.addGeometry(Part.LineSegment(App.Vector(0.05, -0.784, 0), App.Vector(1.17, -0.784, 0)), False)
sketch6.addGeometry(Part.LineSegment(App.Vector(1.17, -0.784, 0), App.Vector(1.17, -0.87, 0)), False)
sketch6.addGeometry(Part.LineSegment(App.Vector(1.17, -0.87, 0), App.Vector(1.22, -0.87, 0)), False)
sketch6.addGeometry(Part.LineSegment(App.Vector(1.22, -0.87, 0), App.Vector(1.22, 0.87, 0)), False)
sketch6.addGeometry(Part.LineSegment(App.Vector(1.22, 0.87, 0), App.Vector(0, 0.87, 0)), False)
sketch6.addGeometry(Part.LineSegment(App.Vector(0, 0.87, 0), App.Vector(0, -0.87, 0)), False)
sketch6.addGeometry(Part.LineSegment(App.Vector(1.17, -0.746, 0), App.Vector(0.05, -0.746, 0)), False)
sketch6.addGeometry(Part.LineSegment(App.Vector(0.05, -0.746, 0), App.Vector(0.05, -0.46, 0)), False)
sketch6.addGeometry(Part.LineSegment(App.Vector(0.05, -0.46, 0), App.Vector(1.17, -0.46, 0)), False)
sketch6.addGeometry(Part.LineSegment(App.Vector(1.17, -0.46, 0), App.Vector(1.17, -0.746, 0)), False)
sketch6.addGeometry(Part.LineSegment(App.Vector(1.17, -0.422, 0), App.Vector(0.05, -0.422, 0)), False)
sketch6.addGeometry(Part.LineSegment(App.Vector(0.05, -0.422, 0), App.Vector(0.05, -0.138, 0)), False)
sketch6.addGeometry(Part.LineSegment(App.Vector(0.05, -0.138, 0), App.Vector(1.17, -0.138, 0)), False)
sketch6.addGeometry(Part.LineSegment(App.Vector(1.17, -0.138, 0), App.Vector(1.17, -0.422, 0)), False)
sketch6.addGeometry(Part.LineSegment(App.Vector(1.17, -0.1, 0), App.Vector(0.05, -0.1, 0)), False)
sketch6.addGeometry(Part.LineSegment(App.Vector(0.05, -0.1, 0), App.Vector(0.05, 0.186, 0)), False)
sketch6.addGeometry(Part.LineSegment(App.Vector(0.05, 0.186, 0), App.Vector(1.17, 0.186, 0)), False)
sketch6.addGeometry(Part.LineSegment(App.Vector(1.17, 0.186, 0), App.Vector(1.17, -0.1, 0)), False)
sketch6.addGeometry(Part.LineSegment(App.Vector(1.17, 0.224, 0), App.Vector(0.05, 0.224, 0)), False)
sketch6.addGeometry(Part.LineSegment(App.Vector(0.05, 0.224, 0), App.Vector(0.05, 0.508, 0)), False)
sketch6.addGeometry(Part.LineSegment(App.Vector(0.05, 0.508, 0), App.Vector(1.17, 0.508, 0)), False)
sketch6.addGeometry(Part.LineSegment(App.Vector(1.17, 0.508, 0), App.Vector(1.17, 0.224, 0)), False)
sketch6.addGeometry(Part.LineSegment(App.Vector(1.17, 0.546, 0), App.Vector(0.05, 0.546, 0)), False)
sketch6.addGeometry(Part.LineSegment(App.Vector(0.05, 0.546, 0), App.Vector(0.05, 0.832, 0)), False)
sketch6.addGeometry(Part.LineSegment(App.Vector(0.05, 0.832, 0), App.Vector(1.17, 0.832, 0)), False)
sketch6.addGeometry(Part.LineSegment(App.Vector(1.17, 0.832, 0), App.Vector(1.17, 0.546, 0)), False)
sketch6.addConstraint(Sketcher.Constraint("Coincident", 0, 2, 1, 1))
sketch6.addConstraint(Sketcher.Constraint("Coincident", 1, 2, 2, 1))
sketch6.addConstraint(Sketcher.Constraint("Coincident", 2, 2, 3, 1))
sketch6.addConstraint(Sketcher.Constraint("Coincident", 3, 2, 4, 1))
sketch6.addConstraint(Sketcher.Constraint("Coincident", 4, 2, 5, 1))
sketch6.addConstraint(Sketcher.Constraint("Coincident", 5, 2, 6, 1))
sketch6.addConstraint(Sketcher.Constraint("Coincident", 6, 2, 7, 1))
sketch6.addConstraint(Sketcher.Constraint("Coincident", 7, 2, 0, 1))
sketch6.addConstraint(Sketcher.Constraint("Coincident", 8, 2, 9, 1))
sketch6.addConstraint(Sketcher.Constraint("Coincident", 9, 2, 10, 1))
sketch6.addConstraint(Sketcher.Constraint("Coincident", 10, 2, 11, 1))
sketch6.addConstraint(Sketcher.Constraint("Coincident", 11, 2, 8, 1))
sketch6.addConstraint(Sketcher.Constraint("Coincident", 12, 2, 13, 1))
sketch6.addConstraint(Sketcher.Constraint("Coincident", 13, 2, 14, 1))
sketch6.addConstraint(Sketcher.Constraint("Coincident", 14, 2, 15, 1))
sketch6.addConstraint(Sketcher.Constraint("Coincident", 15, 2, 12, 1))
sketch6.addConstraint(Sketcher.Constraint("Coincident", 16, 2, 17, 1))
sketch6.addConstraint(Sketcher.Constraint("Coincident", 17, 2, 18, 1))
sketch6.addConstraint(Sketcher.Constraint("Coincident", 18, 2, 19, 1))
sketch6.addConstraint(Sketcher.Constraint("Coincident", 19, 2, 16, 1))
sketch6.addConstraint(Sketcher.Constraint("Coincident", 20, 2, 21, 1))
sketch6.addConstraint(Sketcher.Constraint("Coincident", 21, 2, 22, 1))
sketch6.addConstraint(Sketcher.Constraint("Coincident", 22, 2, 23, 1))
sketch6.addConstraint(Sketcher.Constraint("Coincident", 23, 2, 20, 1))
sketch6.addConstraint(Sketcher.Constraint("Coincident", 24, 2, 25, 1))
sketch6.addConstraint(Sketcher.Constraint("Coincident", 25, 2, 26, 1))
sketch6.addConstraint(Sketcher.Constraint("Coincident", 26, 2, 27, 1))
sketch6.addConstraint(Sketcher.Constraint("Coincident", 27, 2, 24, 1))
sketch6.addConstraint(Sketcher.Constraint("Horizontal", 0))
sketch6.addConstraint(Sketcher.Constraint("Vertical", 1))
sketch6.addConstraint(Sketcher.Constraint("Horizontal", 2))
sketch6.addConstraint(Sketcher.Constraint("Vertical", 3))
sketch6.addConstraint(Sketcher.Constraint("Horizontal", 4))
sketch6.addConstraint(Sketcher.Constraint("Vertical", 5))
sketch6.addConstraint(Sketcher.Constraint("Horizontal", 6))
sketch6.addConstraint(Sketcher.Constraint("Vertical", 7))
sketch6.addConstraint(Sketcher.Constraint("Horizontal", 8))
sketch6.addConstraint(Sketcher.Constraint("Vertical", 9))
sketch6.addConstraint(Sketcher.Constraint("Horizontal", 10))
sketch6.addConstraint(Sketcher.Constraint("Vertical", 11))
sketch6.addConstraint(Sketcher.Constraint("Horizontal", 12))
sketch6.addConstraint(Sketcher.Constraint("Vertical", 13))
sketch6.addConstraint(Sketcher.Constraint("Horizontal", 14))
sketch6.addConstraint(Sketcher.Constraint("Vertical", 15))
sketch6.addConstraint(Sketcher.Constraint("Horizontal", 16))
sketch6.addConstraint(Sketcher.Constraint("Vertical", 17))
sketch6.addConstraint(Sketcher.Constraint("Horizontal", 18))
sketch6.addConstraint(Sketcher.Constraint("Vertical", 19))
sketch6.addConstraint(Sketcher.Constraint("Horizontal", 20))
sketch6.addConstraint(Sketcher.Constraint("Vertical", 21))
sketch6.addConstraint(Sketcher.Constraint("Horizontal", 22))
sketch6.addConstraint(Sketcher.Constraint("Vertical", 23))
sketch6.addConstraint(Sketcher.Constraint("Horizontal", 24))
sketch6.addConstraint(Sketcher.Constraint("Vertical", 25))
sketch6.addConstraint(Sketcher.Constraint("Horizontal", 26))
sketch6.addConstraint(Sketcher.Constraint("Vertical", 27))
sketch6.addConstraint(Sketcher.Constraint("Symmetric", 6, 2, 7, 2, -1, 1))
sketch6.addConstraint(Sketcher.Constraint("Horizontal", 0, 2, 3, 2))
sketch6.addConstraint(Sketcher.Constraint("Vertical", 1, 2, 8, 2))
sketch6.addConstraint(Sketcher.Constraint("Vertical", 3, 2, 10, 2))
sketch6.addConstraint(Sketcher.Constraint("Vertical", 9, 2, 12, 2))
sketch6.addConstraint(Sketcher.Constraint("Vertical", 11, 2, 14, 2))
sketch6.addConstraint(Sketcher.Constraint("Vertical", 13, 2, 16, 2))
sketch6.addConstraint(Sketcher.Constraint("Vertical", 15, 2, 18, 2))
sketch6.addConstraint(Sketcher.Constraint("Vertical", 17, 2, 20, 2))
sketch6.addConstraint(Sketcher.Constraint("Vertical", 19, 2, 22, 2))
sketch6.addConstraint(Sketcher.Constraint("Vertical", 21, 2, 24, 2))
sketch6.addConstraint(Sketcher.Constraint("Vertical", 23, 2, 26, 2))
sketch6.addConstraint(Sketcher.Constraint("Equal", 0, 4))
sketch6.addConstraint(Sketcher.Constraint("Equal", 11, 17))
sketch6.addConstraint(Sketcher.Constraint("Equal", 15, 21))
sketch6.addConstraint(Sketcher.Constraint("Equal", 19, 25))
sketch6.addConstraint(Sketcher.Constraint("DistanceX", 0, 1, 0, 2, Q("0.05 mm")))
sketch6.addConstraint(Sketcher.Constraint("DistanceX", 2, 1, 2, 2, Q("1.12 mm")))
sketch6.addConstraint(Sketcher.Constraint("DistanceY", 5, 1, 5, 2, Q("1.74 mm")))
sketch6.addConstraint(Sketcher.Constraint("DistanceY", 16, 2, -1, 1, Q("0.1 mm")))
sketch6.addConstraint(Sketcher.Constraint("DistanceY", 1, 1, 1, 2, Q("0.086 mm")))
sketch6.addConstraint(Sketcher.Constraint("DistanceY", 9, 1, 9, 2, Q("0.286 mm")))
sketch6.addConstraint(Sketcher.Constraint("DistanceY", 13, 1, 13, 2, Q("0.284 mm")))
sketch6.addConstraint(Sketcher.Constraint("DistanceY", 9, 2, -1, 1, Q("0.46 mm")))
sketch6.addConstraint(Sketcher.Constraint("DistanceY", 15, 2, 22, 2, Q("0.93 mm")))
sketch6.addConstraint(Sketcher.Constraint("DistanceY", 17, 2, 24, 2, Q("0.36 mm")))
sketch6.addConstraint(Sketcher.Constraint("DistanceY", 12, 2, -1, 1, Q("0.422 mm")))
pad6 = body.newObject("PartDesign::Pad", "Pad005")
pad6.Profile = sketch6
pad6.Length = 0.02

# Sketch on YZ plane
sketch7 = body.newObject("Sketcher::SketchObject", "Sketch006")
sketch7.AttachmentSupport = (doc.getObject("YZ_Plane"), [""])
sketch7.MapMode = "FlatFace"
sketch7.AttachmentOffset = App.Placement(App.Vector(0, 0, 1.22), App.Rotation())
sketch7.addGeometry(Part.LineSegment(App.Vector(0.87, 0.24, 0), App.Vector(-0.87, 0.24, 0)), False)
sketch7.addGeometry(Part.LineSegment(App.Vector(-0.87, 0.24, 0), App.Vector(-0.87, -0.25, 0)), False)
sketch7.addGeometry(Part.LineSegment(App.Vector(-0.87, -0.25, 0), App.Vector(0.87, -0.25, 0)), False)
sketch7.addGeometry(Part.LineSegment(App.Vector(0.87, -0.25, 0), App.Vector(0.87, 0.24, 0)), False)
sketch7.addConstraint(Sketcher.Constraint("Coincident", 0, 2, 1, 1))
sketch7.addConstraint(Sketcher.Constraint("Coincident", 1, 2, 2, 1))
sketch7.addConstraint(Sketcher.Constraint("Coincident", 2, 2, 3, 1))
sketch7.addConstraint(Sketcher.Constraint("Coincident", 3, 2, 0, 1))
sketch7.addConstraint(Sketcher.Constraint("Horizontal", 0))
sketch7.addConstraint(Sketcher.Constraint("Vertical", 1))
sketch7.addConstraint(Sketcher.Constraint("Horizontal", 2))
sketch7.addConstraint(Sketcher.Constraint("Vertical", 3))
sketch7.addConstraint(Sketcher.Constraint("DistanceX", 0, 2, 0, 1, Q("1.74 mm")))
sketch7.addConstraint(Sketcher.Constraint("DistanceY", 1, 2, 1, 1, Q("0.49 mm")))
sketch7.addConstraint(Sketcher.Constraint("DistanceX", 0, 2, -1, 1, Q("0.87 mm")))
sketch7.addConstraint(Sketcher.Constraint("DistanceY", -1, 1, 0, 2, Q("0.24 mm")))
pad7 = body.newObject("PartDesign::Pad", "Pad006")
pad7.Profile = sketch7
pad7.Length = 0.5

# Sketch on YZ plane
sketch8 = body.newObject("Sketcher::SketchObject", "Sketch007")
sketch8.AttachmentSupport = (doc.getObject("YZ_Plane"), [""])
sketch8.MapMode = "FlatFace"
sketch8.addGeometry(Part.LineSegment(App.Vector(0.87, -0.25, 0), App.Vector(-0.87, -0.25, 0)), False)
sketch8.addGeometry(Part.LineSegment(App.Vector(-0.87, -0.25, 0), App.Vector(-0.87, 0.24, 0)), False)
sketch8.addGeometry(Part.LineSegment(App.Vector(-0.87, 0.24, 0), App.Vector(0.87, 0.24, 0)), False)
sketch8.addGeometry(Part.LineSegment(App.Vector(0.87, 0.24, 0), App.Vector(0.87, -0.25, 0)), False)
sketch8.addConstraint(Sketcher.Constraint("Coincident", 0, 2, 1, 1))
sketch8.addConstraint(Sketcher.Constraint("Coincident", 1, 2, 2, 1))
sketch8.addConstraint(Sketcher.Constraint("Coincident", 2, 2, 3, 1))
sketch8.addConstraint(Sketcher.Constraint("Coincident", 3, 2, 0, 1))
sketch8.addConstraint(Sketcher.Constraint("Horizontal", 0))
sketch8.addConstraint(Sketcher.Constraint("Vertical", 1))
sketch8.addConstraint(Sketcher.Constraint("Horizontal", 2))
sketch8.addConstraint(Sketcher.Constraint("Vertical", 3))
sketch8.addConstraint(Sketcher.Constraint("DistanceX", 0, 2, 0, 1, Q("1.74 mm")))
sketch8.addConstraint(Sketcher.Constraint("DistanceY", 1, 1, 1, 2, Q("0.49 mm")))
sketch8.addConstraint(Sketcher.Constraint("DistanceX", 0, 2, -1, 1, Q("0.87 mm")))
sketch8.addConstraint(Sketcher.Constraint("DistanceY", 0, 2, -1, 1, Q("0.25 mm")))
pad8 = body.newObject("PartDesign::Pad", "Pad007")
pad8.Profile = sketch8
pad8.Length = 0.5
pad8.Reversed = True

doc.recompute()
